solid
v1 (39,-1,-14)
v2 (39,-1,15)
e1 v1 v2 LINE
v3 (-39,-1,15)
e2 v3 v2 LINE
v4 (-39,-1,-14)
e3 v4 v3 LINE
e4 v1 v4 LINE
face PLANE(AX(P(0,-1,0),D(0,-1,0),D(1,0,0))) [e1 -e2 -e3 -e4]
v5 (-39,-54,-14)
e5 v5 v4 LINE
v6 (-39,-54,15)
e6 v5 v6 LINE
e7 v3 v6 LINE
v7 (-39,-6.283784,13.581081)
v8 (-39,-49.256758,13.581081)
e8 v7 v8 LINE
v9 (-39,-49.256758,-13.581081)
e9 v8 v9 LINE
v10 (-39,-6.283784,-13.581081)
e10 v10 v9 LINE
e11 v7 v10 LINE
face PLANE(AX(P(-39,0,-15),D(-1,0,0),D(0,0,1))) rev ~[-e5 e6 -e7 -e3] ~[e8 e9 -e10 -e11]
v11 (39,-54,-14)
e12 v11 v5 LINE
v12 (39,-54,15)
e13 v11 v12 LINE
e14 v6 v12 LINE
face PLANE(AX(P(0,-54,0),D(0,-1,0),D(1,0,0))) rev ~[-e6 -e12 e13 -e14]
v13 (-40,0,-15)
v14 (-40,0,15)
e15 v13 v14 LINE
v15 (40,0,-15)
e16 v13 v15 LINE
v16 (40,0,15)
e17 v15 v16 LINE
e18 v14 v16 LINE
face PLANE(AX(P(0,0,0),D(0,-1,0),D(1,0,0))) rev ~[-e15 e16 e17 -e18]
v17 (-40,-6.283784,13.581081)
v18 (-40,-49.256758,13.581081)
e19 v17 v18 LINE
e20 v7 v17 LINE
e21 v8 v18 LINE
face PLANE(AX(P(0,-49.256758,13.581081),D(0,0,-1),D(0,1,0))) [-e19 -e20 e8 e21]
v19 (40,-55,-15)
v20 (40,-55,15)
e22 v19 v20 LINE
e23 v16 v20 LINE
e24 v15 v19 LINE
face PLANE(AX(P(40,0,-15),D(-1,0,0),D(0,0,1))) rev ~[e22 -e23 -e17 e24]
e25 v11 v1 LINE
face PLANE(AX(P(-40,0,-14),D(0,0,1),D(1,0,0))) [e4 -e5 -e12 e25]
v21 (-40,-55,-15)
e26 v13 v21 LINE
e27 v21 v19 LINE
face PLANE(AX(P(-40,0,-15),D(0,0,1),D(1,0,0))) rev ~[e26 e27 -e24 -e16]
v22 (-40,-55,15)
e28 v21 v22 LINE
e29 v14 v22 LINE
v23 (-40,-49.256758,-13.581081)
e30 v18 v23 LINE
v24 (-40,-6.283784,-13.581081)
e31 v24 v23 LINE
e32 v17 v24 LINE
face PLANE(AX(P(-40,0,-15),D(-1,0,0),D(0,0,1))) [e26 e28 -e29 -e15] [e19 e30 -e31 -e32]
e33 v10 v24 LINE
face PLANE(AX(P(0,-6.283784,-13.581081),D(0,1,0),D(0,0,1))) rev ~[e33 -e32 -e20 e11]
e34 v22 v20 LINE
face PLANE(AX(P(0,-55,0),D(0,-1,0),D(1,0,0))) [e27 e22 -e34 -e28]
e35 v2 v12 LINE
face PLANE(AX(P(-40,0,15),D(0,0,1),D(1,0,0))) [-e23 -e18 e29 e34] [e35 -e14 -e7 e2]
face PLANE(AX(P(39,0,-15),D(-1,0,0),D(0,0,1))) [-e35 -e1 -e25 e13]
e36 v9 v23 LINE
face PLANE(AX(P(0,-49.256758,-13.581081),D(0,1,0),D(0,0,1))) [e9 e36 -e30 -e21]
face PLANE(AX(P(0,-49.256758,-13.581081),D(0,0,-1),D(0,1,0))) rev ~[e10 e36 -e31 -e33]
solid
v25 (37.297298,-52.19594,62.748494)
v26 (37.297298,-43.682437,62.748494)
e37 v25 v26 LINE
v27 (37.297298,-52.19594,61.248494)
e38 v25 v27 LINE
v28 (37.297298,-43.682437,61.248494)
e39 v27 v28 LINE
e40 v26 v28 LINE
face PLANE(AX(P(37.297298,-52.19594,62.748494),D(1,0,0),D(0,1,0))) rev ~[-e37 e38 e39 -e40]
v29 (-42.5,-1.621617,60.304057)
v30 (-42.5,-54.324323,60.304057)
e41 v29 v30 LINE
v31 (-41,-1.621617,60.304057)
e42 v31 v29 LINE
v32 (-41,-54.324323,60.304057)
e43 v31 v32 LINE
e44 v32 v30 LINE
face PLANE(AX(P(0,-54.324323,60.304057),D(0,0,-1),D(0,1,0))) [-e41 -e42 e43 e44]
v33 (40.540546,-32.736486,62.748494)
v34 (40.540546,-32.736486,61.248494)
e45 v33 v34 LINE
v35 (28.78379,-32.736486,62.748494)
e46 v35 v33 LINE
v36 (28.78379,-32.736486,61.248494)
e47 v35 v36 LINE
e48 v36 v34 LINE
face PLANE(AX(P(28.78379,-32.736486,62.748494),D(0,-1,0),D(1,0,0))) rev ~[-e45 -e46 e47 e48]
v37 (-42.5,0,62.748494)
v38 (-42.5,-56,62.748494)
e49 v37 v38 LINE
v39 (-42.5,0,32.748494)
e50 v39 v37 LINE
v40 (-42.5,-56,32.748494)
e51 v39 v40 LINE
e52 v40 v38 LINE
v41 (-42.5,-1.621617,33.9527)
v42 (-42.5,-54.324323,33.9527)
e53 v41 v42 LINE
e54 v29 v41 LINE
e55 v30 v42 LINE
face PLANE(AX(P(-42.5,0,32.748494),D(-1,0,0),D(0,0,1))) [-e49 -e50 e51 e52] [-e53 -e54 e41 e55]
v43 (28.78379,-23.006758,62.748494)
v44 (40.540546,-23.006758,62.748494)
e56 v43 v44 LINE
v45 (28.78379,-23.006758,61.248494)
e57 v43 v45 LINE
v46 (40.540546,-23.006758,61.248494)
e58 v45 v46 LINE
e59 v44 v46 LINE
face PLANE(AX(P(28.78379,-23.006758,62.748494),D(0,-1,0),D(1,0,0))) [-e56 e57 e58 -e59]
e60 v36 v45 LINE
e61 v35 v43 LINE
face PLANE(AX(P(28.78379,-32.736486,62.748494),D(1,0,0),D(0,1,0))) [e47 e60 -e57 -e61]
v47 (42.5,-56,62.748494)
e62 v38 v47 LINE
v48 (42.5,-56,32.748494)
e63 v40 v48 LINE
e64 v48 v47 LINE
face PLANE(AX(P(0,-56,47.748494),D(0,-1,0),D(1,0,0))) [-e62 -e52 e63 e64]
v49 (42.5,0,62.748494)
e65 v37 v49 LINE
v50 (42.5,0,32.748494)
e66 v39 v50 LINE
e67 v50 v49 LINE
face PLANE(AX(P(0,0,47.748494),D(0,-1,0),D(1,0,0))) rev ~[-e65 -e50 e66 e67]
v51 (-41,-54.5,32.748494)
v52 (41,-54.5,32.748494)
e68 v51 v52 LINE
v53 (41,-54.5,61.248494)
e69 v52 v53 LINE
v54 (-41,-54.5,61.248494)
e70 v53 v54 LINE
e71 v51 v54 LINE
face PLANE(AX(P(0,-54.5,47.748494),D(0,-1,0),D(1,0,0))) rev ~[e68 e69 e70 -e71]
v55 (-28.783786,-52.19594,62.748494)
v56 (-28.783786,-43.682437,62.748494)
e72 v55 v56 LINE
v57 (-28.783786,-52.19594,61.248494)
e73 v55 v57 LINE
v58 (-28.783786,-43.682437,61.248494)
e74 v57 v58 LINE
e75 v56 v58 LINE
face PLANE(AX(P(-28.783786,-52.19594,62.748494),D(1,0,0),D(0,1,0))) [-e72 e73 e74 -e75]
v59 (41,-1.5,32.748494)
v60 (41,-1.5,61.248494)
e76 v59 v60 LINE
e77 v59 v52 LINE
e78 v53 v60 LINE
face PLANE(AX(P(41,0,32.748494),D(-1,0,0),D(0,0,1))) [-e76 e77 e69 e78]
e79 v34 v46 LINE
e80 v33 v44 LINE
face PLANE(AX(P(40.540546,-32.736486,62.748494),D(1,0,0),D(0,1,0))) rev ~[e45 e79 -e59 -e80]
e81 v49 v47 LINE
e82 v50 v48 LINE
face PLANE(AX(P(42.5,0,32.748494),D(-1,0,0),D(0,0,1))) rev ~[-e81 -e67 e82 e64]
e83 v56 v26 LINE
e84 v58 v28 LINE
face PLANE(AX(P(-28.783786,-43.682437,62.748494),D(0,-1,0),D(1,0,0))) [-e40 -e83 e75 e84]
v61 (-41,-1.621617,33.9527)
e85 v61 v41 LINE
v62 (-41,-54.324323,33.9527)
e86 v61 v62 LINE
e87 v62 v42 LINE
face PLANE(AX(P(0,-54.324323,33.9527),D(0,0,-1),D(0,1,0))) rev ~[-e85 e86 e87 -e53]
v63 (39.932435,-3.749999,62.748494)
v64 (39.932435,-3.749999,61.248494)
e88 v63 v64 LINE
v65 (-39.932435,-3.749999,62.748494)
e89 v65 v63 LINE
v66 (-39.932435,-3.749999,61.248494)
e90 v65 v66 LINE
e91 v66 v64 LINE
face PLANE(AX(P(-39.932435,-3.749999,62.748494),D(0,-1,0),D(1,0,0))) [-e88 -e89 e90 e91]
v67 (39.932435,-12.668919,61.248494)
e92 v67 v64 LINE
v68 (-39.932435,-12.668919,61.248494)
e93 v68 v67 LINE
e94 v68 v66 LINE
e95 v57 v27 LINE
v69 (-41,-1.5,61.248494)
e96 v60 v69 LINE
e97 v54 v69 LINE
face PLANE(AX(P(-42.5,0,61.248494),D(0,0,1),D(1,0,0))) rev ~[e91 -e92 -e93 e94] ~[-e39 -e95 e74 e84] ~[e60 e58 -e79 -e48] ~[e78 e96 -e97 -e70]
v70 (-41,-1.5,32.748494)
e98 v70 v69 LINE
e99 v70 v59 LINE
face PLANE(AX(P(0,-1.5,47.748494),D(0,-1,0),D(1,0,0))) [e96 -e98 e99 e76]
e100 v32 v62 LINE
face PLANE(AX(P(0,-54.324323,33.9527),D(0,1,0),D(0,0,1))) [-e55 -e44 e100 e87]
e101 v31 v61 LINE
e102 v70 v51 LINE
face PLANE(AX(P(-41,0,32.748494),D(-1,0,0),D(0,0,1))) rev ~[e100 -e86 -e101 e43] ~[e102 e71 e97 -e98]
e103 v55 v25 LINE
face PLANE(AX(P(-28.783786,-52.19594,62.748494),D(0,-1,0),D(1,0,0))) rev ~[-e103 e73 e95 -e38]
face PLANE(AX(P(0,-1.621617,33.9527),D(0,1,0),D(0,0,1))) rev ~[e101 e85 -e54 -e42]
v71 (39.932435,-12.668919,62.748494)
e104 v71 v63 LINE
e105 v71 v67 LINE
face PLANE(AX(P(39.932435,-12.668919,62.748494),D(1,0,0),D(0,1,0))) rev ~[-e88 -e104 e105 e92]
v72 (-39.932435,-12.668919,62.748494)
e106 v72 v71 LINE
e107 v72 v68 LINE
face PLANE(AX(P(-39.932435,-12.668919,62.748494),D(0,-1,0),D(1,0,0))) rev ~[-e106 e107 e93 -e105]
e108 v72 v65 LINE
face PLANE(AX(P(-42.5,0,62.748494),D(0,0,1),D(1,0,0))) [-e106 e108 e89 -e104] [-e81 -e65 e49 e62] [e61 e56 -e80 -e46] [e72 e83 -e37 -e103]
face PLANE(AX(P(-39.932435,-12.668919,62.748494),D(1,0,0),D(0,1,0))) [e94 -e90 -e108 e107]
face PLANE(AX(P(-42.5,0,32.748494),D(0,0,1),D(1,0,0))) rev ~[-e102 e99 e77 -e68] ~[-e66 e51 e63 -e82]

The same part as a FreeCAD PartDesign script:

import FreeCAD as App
import Part
import Sketcher
Q = App.Units.Quantity


def faces_at(feature, points):
    """Names of the faces that lie closest to the given points."""
    faces = feature.Shape.Faces
    near = lambda p: min(range(len(faces)), key=lambda i: faces[i].distToShape(Part.Vertex(*p))[0])
    return sorted({f"Face{near(p) + 1}" for p in points})

doc = App.newDocument("Part")
params = doc.addObject("Spreadsheet::Sheet", "Params")
for row, (alias, value) in enumerate([
    ("sketch1_width", "80 mm"),
    ("sketch1_height", "30 mm"),
    ("pad1_length", "55 mm"),
    ("thickness_wall", "1 mm"),
    ("pocket1_length", "50 mm"),
    ("sketch3_width", "85 mm"),
    ("sketch3_height", "30 mm"),
    ("pad2_length", "56 mm"),
    ("thickness2_wall", "1.5 mm"),
    ("pocket2_length", "50 mm"),
    ("pocket3_length", "25 mm"),
    ("pocket4_length", "25 mm"),
    ("pocket5_length", "25 mm"),
], start=1):
    params.set(f"A{row}", alias)
    params.set(f"B{row}", "=" + value)
    params.setAlias(f"B{row}", alias)

body = doc.addObject("PartDesign::Body", "Body")

# Sketch on XZ plane
sketch1 = body.newObject("Sketcher::SketchObject", "Sketch")
sketch1.AttachmentSupport = (doc.getObject("XZ_Plane"), [""])
sketch1.MapMode = "FlatFace"
sketch1.addGeometry([
    Part.LineSegment(App.Vector(-40, 15, 0), App.Vector(-40, -15, 0)),
    Part.LineSegment(App.Vector(-40, -15, 0), App.Vector(40, -15, 0)),
    Part.LineSegment(App.Vector(40, -15, 0), App.Vector(40, 15, 0)),
    Part.LineSegment(App.Vector(40, 15, 0), App.Vector(-40, 15, 0)),
], False)
sketch1.addConstraint([
    Sketcher.Constraint("Coincident", 0, 2, 1, 1),
    Sketcher.Constraint("Coincident", 1, 2, 2, 1),
    Sketcher.Constraint("Coincident", 2, 2, 3, 1),
    Sketcher.Constraint("Coincident", 3, 2, 0, 1),
    Sketcher.Constraint("Vertical", 0),
    Sketcher.Constraint("Horizontal", 1),
    Sketcher.Constraint("Vertical", 2),
    Sketcher.Constraint("Horizontal", 3),
    Sketcher.Constraint("Symmetric", 0, 2, 2, 2, -1, 1),
    Sketcher.Constraint("DistanceX", 1, 1, 1, 2, Q("80 mm")),
    Sketcher.Constraint("DistanceY", 0, 2, 0, 1, Q("30 mm")),
])
sketch1.setExpression("Constraints[9]", "Params.sketch1_width")
sketch1.setExpression("Constraints[10]", "Params.sketch1_height")
pad1 = body.newObject("PartDesign::Pad", "Pad")
pad1.Profile = sketch1
pad1.setExpression("Length", "Params.pad1_length")
doc.recompute()

thickness = body.newObject("PartDesign::Thickness", "Thickness")
thickness.Base = (pad1, faces_at(pad1, [(0, -27.5, 15)]))
thickness.setExpression("Value", "Params.thickness_wall")
thickness.Reversed = True
thickness.Join = "Arc"

# Sketch on YZ plane
sketch2 = body.newObject("Sketcher::SketchObject", "Sketch001")
sketch2.AttachmentSupport = (doc.getObject("YZ_Plane"), [""])
sketch2.MapMode = "FlatFace"
sketch2.addGeometry([
    Part.LineSegment(App.Vector(-49, 14, 0), App.Vector(-49, -14, 0)),
    Part.LineSegment(App.Vector(-49, -14, 0), App.Vector(-6, -14, 0)),
    Part.LineSegment(App.Vector(-6, -14, 0), App.Vector(-6, 14, 0)),
    Part.LineSegment(App.Vector(-6, 14, 0), App.Vector(-49, 14, 0)),
], False)
sketch2.addConstraint([
    Sketcher.Constraint("Coincident", 0, 2, 1, 1),
    Sketcher.Constraint("Coincident", 1, 2, 2, 1),
    Sketcher.Constraint("Coincident", 2, 2, 3, 1),
    Sketcher.Constraint("Coincident", 3, 2, 0, 1),
    Sketcher.Constraint("Vertical", 0),
    Sketcher.Constraint("Horizontal", 1),
    Sketcher.Constraint("Vertical", 2),
    Sketcher.Constraint("Horizontal", 3),
    Sketcher.Constraint("DistanceY", 0, 2, 0, 1, Q("27.162162 mm")),
    Sketcher.Constraint("DistanceX", 1, 1, 1, 2, Q("42.972975 mm")),
    Sketcher.Constraint("DistanceX", 0, 2, -1, 1, Q("49.256758 mm")),
    Sketcher.Constraint("DistanceY", 0, 2, -1, 1, Q("13.581081 mm")),
])
pocket1 = body.newObject("PartDesign::Pocket", "Pocket")
pocket1.Profile = sketch2
pocket1.setExpression("Length", "Params.pocket1_length")
body2 = doc.addObject("PartDesign::Body", "Body001")

# Sketch on XZ plane
sketch3 = body2.newObject("Sketcher::SketchObject", "Sketch002")
sketch3.AttachmentSupport = (doc.getObject("XZ_Plane001"), [""])
sketch3.MapMode = "FlatFace"
sketch3.addGeometry([
    Part.LineSegment(App.Vector(-42, 63, 0), App.Vector(-42, 33, 0)),
    Part.LineSegment(App.Vector(-42, 33, 0), App.Vector(42, 33, 0)),
    Part.LineSegment(App.Vector(42, 33, 0), App.Vector(42, 63, 0)),
    Part.LineSegment(App.Vector(42, 63, 0), App.Vector(-42, 63, 0)),
], False)
sketch3.addConstraint([
    Sketcher.Constraint("Coincident", 0, 2, 1, 1),
    Sketcher.Constraint("Coincident", 1, 2, 2, 1),
    Sketcher.Constraint("Coincident", 2, 2, 3, 1),
    Sketcher.Constraint("Coincident", 3, 2, 0, 1),
    Sketcher.Constraint("Vertical", 0),
    Sketcher.Constraint("Horizontal", 1),
    Sketcher.Constraint("Vertical", 2),
    Sketcher.Constraint("Horizontal", 3),
    Sketcher.Constraint("DistanceX", 1, 1, 1, 2, Q("85 mm")),
    Sketcher.Constraint("DistanceY", 0, 2, 0, 1, Q("30 mm")),
    Sketcher.Constraint("DistanceX", 0, 2, -1, 1, Q("42.5 mm")),
    Sketcher.Constraint("DistanceY", -1, 1, 0, 2, Q("32.748494 mm")),
])
sketch3.setExpression("Constraints[8]", "Params.sketch3_width")
sketch3.setExpression("Constraints[9]", "Params.sketch3_height")
pad2 = body2.newObject("PartDesign::Pad", "Pad001")
pad2.Profile = sketch3
pad2.setExpression("Length", "Params.pad2_length")
doc.recompute()

thickness2 = body2.newObject("PartDesign::Thickness", "Thickness001")
thickness2.Base = (pad2, faces_at(pad2, [(0, -28, 32.748)]))
thickness2.setExpression("Value", "Params.thickness2_wall")
thickness2.Reversed = True
thickness2.Join = "Arc"

# Sketch on YZ plane
sketch4 = body2.newObject("Sketcher::SketchObject", "Sketch003")
sketch4.AttachmentSupport = (doc.getObject("YZ_Plane001"), [""])
sketch4.MapMode = "FlatFace"
sketch4.addGeometry([
    Part.LineSegment(App.Vector(-54, 60, 0), App.Vector(-54, 34, 0)),
    Part.LineSegment(App.Vector(-54, 34, 0), App.Vector(-2, 34, 0)),
    Part.LineSegment(App.Vector(-2, 34, 0), App.Vector(-2, 60, 0)),
    Part.LineSegment(App.Vector(-2, 60, 0), App.Vector(-54, 60, 0)),
], False)
sketch4.addConstraint([
    Sketcher.Constraint("Coincident", 0, 2, 1, 1),
    Sketcher.Constraint("Coincident", 1, 2, 2, 1),
    Sketcher.Constraint("Coincident", 2, 2, 3, 1),
    Sketcher.Constraint("Coincident", 3, 2, 0, 1),
    Sketcher.Constraint("Vertical", 0),
    Sketcher.Constraint("Horizontal", 1),
    Sketcher.Constraint("Vertical", 2),
    Sketcher.Constraint("Horizontal", 3),
    Sketcher.Constraint("DistanceY", -1, 1, 0, 2, Q("33.9527 mm")),
    Sketcher.Constraint("DistanceX", 1, 1, 1, 2, Q("52.702705 mm")),
    Sketcher.Constraint("DistanceY", 0, 2, 0, 1, Q("26.351357 mm")),
    Sketcher.Constraint("DistanceX", 0, 2, -1, 1, Q("54.324323 mm")),
])
pocket2 = body2.newObject("PartDesign::Pocket", "Pocket001")
pocket2.Profile = sketch4
pocket2.setExpression("Length", "Params.pocket2_length")

# Sketch on XY plane
sketch5 = body2.newObject("Sketcher::SketchObject", "Sketch004")
sketch5.AttachmentSupport = (doc.getObject("XY_Plane001"), [""])
sketch5.MapMode = "FlatFace"
sketch5.AttachmentOffset = App.Placement(App.Vector(0, 0, 62.748494), App.Rotation())
sketch5.addGeometry([
    Part.LineSegment(App.Vector(-40, -4, 0), App.Vector(-40, -13, 0)),
    Part.LineSegment(App.Vector(-40, -13, 0), App.Vector(40, -13, 0)),
    Part.LineSegment(App.Vector(40, -13, 0), App.Vector(40, -4, 0)),
    Part.LineSegment(App.Vector(40, -4, 0), App.Vector(-40, -4, 0)),
], False)
sketch5.addConstraint([
    Sketcher.Constraint("Coincident", 0, 2, 1, 1),
    Sketcher.Constraint("Coincident", 1, 2, 2, 1),
    Sketcher.Constraint("Coincident", 2, 2, 3, 1),
    Sketcher.Constraint("Coincident", 3, 2, 0, 1),
    Sketcher.Constraint("Vertical", 0),
    Sketcher.Constraint("Horizontal", 1),
    Sketcher.Constraint("Vertical", 2),
    Sketcher.Constraint("Horizontal", 3),
    Sketcher.Constraint("DistanceY", 2, 2, -1, 1, Q("3.749999 mm")),
    Sketcher.Constraint("DistanceX", 1, 1, 1, 2, Q("79.86487 mm")),
    Sketcher.Constraint("DistanceY", 0, 2, 0, 1, Q("8.918919 mm")),
    Sketcher.Constraint("DistanceX", 0, 2, -1, 1, Q("39.932435 mm")),
])
pocket3 = body2.newObject("PartDesign::Pocket", "Pocket002")
pocket3.Profile = sketch5
pocket3.setExpression("Length", "Params.pocket3_length")

# Sketch on XY plane
sketch6 = body2.newObject("Sketcher::SketchObject", "Sketch005")
sketch6.AttachmentSupport = (doc.getObject("XY_Plane001"), [""])
sketch6.MapMode = "FlatFace"
sketch6.AttachmentOffset = App.Placement(App.Vector(0, 0, 62.748494), App.Rotation())
sketch6.addGeometry([
    Part.LineSegment(App.Vector(-29, -44, 0), App.Vector(-29, -52, 0)),
    Part.LineSegment(App.Vector(-29, -52, 0), App.Vector(37, -52, 0)),
    Part.LineSegment(App.Vector(37, -52, 0), App.Vector(37, -44, 0)),
    Part.LineSegment(App.Vector(37, -44, 0), App.Vector(-29, -44, 0)),
], False)
sketch6.addConstraint([
    Sketcher.Constraint("Coincident", 0, 2, 1, 1),
    Sketcher.Constraint("Coincident", 1, 2, 2, 1),
    Sketcher.Constraint("Coincident", 2, 2, 3, 1),
    Sketcher.Constraint("Coincident", 3, 2, 0, 1),
    Sketcher.Constraint("Vertical", 0),
    Sketcher.Constraint("Horizontal", 1),
    Sketcher.Constraint("Vertical", 2),
    Sketcher.Constraint("Horizontal", 3),
    Sketcher.Constraint("DistanceX", 1, 1, 1, 2, Q("66.081084 mm")),
    Sketcher.Constraint("DistanceY", 0, 2, 0, 1, Q("8.513503 mm")),
    Sketcher.Constraint("DistanceY", 0, 2, -1, 1, Q("52.19594 mm")),
    Sketcher.Constraint("DistanceX", 0, 2, -1, 1, Q("28.783786 mm")),
])
pocket4 = body2.newObject("PartDesign::Pocket", "Pocket003")
pocket4.Profile = sketch6
pocket4.setExpression("Length", "Params.pocket4_length")

# Sketch on XY plane
sketch7 = body2.newObject("Sketcher::SketchObject", "Sketch006")
sketch7.AttachmentSupport = (doc.getObject("XY_Plane001"), [""])
sketch7.MapMode = "FlatFace"
sketch7.AttachmentOffset = App.Placement(App.Vector(0, 0, 62.748494), App.Rotation())
sketch7.addGeometry([
    Part.LineSegment(App.Vector(29, -23, 0), App.Vector(29, -33, 0)),
    Part.LineSegment(App.Vector(29, -33, 0), App.Vector(41, -33, 0)),
    Part.LineSegment(App.Vector(41, -33, 0), App.Vector(41, -23, 0)),
    Part.LineSegment(App.Vector(41, -23, 0), App.Vector(29, -23, 0)),
], False)
sketch7.addConstraint([
    Sketcher.Constraint("Coincident", 0, 2, 1, 1),
    Sketcher.Constraint("Coincident", 1, 2, 2, 1),
    Sketcher.Constraint("Coincident", 2, 2, 3, 1),
    Sketcher.Constraint("Coincident", 3, 2, 0, 1),
    Sketcher.Constraint("Vertical", 0),
    Sketcher.Constraint("Horizontal", 1),
    Sketcher.Constraint("Vertical", 2),
    Sketcher.Constraint("Horizontal", 3),
    Sketcher.Constraint("DistanceX", 1, 1, 1, 2, Q("11.756755 mm")),
    Sketcher.Constraint("DistanceY", 0, 2, 0, 1, Q("9.729728 mm")),
    Sketcher.Constraint("DistanceX", -1, 1, 0, 2, Q("28.78379 mm")),
    Sketcher.Constraint("DistanceY", 2, 2, -1, 1, Q("23.006758 mm")),
])
pocket5 = body2.newObject("PartDesign::Pocket", "Pocket004")
pocket5.Profile = sketch7
pocket5.setExpression("Length", "Params.pocket5_length")

doc.recompute()
